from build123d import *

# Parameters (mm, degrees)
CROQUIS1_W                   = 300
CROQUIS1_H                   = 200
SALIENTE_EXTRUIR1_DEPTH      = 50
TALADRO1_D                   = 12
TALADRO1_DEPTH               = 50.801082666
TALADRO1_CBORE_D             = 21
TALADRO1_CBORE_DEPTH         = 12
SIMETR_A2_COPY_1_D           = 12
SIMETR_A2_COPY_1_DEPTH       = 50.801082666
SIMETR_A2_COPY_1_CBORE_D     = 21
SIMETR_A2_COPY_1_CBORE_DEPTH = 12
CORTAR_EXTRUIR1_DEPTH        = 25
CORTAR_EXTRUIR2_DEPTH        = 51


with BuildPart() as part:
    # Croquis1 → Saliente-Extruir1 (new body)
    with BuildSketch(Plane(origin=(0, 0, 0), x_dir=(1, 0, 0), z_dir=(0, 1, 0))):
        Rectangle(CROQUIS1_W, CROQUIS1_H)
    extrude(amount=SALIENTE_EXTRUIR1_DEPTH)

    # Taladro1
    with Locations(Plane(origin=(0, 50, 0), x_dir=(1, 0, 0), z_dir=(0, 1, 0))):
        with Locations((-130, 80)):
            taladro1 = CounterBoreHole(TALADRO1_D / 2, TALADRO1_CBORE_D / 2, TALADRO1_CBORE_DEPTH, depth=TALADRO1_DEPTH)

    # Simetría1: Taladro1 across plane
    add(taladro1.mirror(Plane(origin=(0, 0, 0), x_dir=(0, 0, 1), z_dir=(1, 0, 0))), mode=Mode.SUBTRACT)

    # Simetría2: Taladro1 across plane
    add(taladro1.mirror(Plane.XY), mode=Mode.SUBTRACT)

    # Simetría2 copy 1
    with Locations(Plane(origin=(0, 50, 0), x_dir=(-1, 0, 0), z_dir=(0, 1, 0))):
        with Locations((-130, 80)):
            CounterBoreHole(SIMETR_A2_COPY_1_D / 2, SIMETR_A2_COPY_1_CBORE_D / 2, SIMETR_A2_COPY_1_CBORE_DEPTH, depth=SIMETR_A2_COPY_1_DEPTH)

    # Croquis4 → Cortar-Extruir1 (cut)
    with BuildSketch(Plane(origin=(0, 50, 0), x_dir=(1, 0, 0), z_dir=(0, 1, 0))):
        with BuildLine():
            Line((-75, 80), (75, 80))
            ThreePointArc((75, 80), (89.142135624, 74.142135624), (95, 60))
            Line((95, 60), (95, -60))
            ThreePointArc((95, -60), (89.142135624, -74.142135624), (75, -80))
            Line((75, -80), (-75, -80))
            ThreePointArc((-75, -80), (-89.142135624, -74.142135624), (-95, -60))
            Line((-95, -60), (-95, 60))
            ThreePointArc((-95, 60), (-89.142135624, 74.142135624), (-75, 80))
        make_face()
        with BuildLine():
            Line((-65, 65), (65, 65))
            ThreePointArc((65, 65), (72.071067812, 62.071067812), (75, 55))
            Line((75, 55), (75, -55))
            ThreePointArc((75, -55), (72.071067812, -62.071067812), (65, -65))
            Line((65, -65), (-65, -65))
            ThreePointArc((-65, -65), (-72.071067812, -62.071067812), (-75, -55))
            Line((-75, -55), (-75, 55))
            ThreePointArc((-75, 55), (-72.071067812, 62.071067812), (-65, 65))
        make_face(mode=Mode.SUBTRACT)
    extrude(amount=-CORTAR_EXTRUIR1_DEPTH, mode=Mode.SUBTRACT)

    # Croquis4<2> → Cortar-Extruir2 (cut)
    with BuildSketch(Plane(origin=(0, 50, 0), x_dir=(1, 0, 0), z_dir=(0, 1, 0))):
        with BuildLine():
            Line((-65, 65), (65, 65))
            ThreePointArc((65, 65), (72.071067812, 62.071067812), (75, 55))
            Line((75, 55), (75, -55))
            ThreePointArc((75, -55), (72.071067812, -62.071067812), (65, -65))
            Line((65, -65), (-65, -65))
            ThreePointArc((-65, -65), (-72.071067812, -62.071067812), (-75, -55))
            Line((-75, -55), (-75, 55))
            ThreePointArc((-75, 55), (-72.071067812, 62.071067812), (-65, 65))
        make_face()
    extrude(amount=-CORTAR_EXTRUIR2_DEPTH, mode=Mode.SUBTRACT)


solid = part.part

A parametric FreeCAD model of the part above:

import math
import FreeCAD as App
import Part
import Sketcher

doc = App.newDocument("Part")
body = doc.addObject("PartDesign::Body", "Body")

sketch1 = doc.addObject("Sketcher::SketchObject", "Sketch")
body.addObject(sketch1)
sketch1.AttachmentSupport = (doc.XZ_Plane, [""])
sketch1.MapMode = "FlatFace"
sketch1.addGeometry(Part.LineSegment(App.Vector(-150, -100, 0), App.Vector(-150, 100, 0)), False)
sketch1.addGeometry(Part.LineSegment(App.Vector(-150, 100, 0), App.Vector(150, 100, 0)), False)
sketch1.addGeometry(Part.LineSegment(App.Vector(150, 100, 0), App.Vector(150, -100, 0)), False)
sketch1.addGeometry(Part.LineSegment(App.Vector(150, -100, 0), App.Vector(-150, -100, 0)), False)
sketch1.addConstraint(Sketcher.Constraint("Coincident", 0, 2, 1, 1))
sketch1.addConstraint(Sketcher.Constraint("Coincident", 1, 2, 2, 1))
sketch1.addConstraint(Sketcher.Constraint("Coincident", 2, 2, 3, 1))
sketch1.addConstraint(Sketcher.Constraint("Coincident", 3, 2, 0, 1))
sketch1.addConstraint(Sketcher.Constraint("Vertical", 0))
sketch1.addConstraint(Sketcher.Constraint("Horizontal", 1))
sketch1.addConstraint(Sketcher.Constraint("Vertical", 2))
sketch1.addConstraint(Sketcher.Constraint("Horizontal", 3))
sketch1.addConstraint(Sketcher.Constraint("Symmetric", 0, 2, 2, 2, -1, 1))
sketch1.addConstraint(Sketcher.Constraint("DistanceX", 1, 1, 1, 2, 300.0))
sketch1.addConstraint(Sketcher.Constraint("DistanceY", 0, 1, 0, 2, 200.0))
pad1 = doc.addObject("PartDesign::Pad", "Pad")
body.addObject(pad1)
pad1.Profile = sketch1
pad1.Length = 50
pad1.Reversed = True

sketch2 = doc.addObject("Sketcher::SketchObject", "Sketch001")
body.addObject(sketch2)
sketch2.AttachmentSupport = (doc.XZ_Plane, [""])
sketch2.MapMode = "FlatFace"
sketch2.AttachmentOffset = App.Placement(App.Vector(0, 0, -50), App.Rotation())
sketch2.addGeometry(Part.Circle(App.Vector(-130, -80, 0), App.Vector(0, 0, 1), 6), False)
sketch2.addConstraint(Sketcher.Constraint("Diameter", 0, 12.0))
sketch2.addConstraint(Sketcher.Constraint("DistanceX", 0, 3, -1, 1, 130.0))
sketch2.addConstraint(Sketcher.Constraint("DistanceY", 0, 3, -1, 1, 80.0))
doc.recompute()
hole = doc.addObject("PartDesign::Hole", "Hole")
body.addObject(hole)
hole.Profile = sketch2
hole.ThreadType = "None"
hole.Diameter = 12
hole.DepthType = "Dimension"
hole.Depth = 50.801083
hole.DrillPoint = "Flat"
hole.HoleCutType = "Counterbore"
hole.HoleCutDiameter = 21
hole.HoleCutDepth = 12
hole.Reversed = True
doc.recompute()

mirrored = doc.addObject("PartDesign::Mirrored", "Mirrored")
body.addObject(mirrored)
mirrored.Originals = [hole]
mirrored.MirrorPlane = (doc.YZ_Plane, [""])
body.Tip = mirrored
doc.recompute()

mirrored2 = doc.addObject("PartDesign::Mirrored", "Mirrored001")
body.addObject(mirrored2)
mirrored2.Originals = [hole]
mirrored2.MirrorPlane = (doc.XY_Plane, [""])
body.Tip = mirrored2

sketch3 = doc.addObject("Sketcher::SketchObject", "Sketch002")
body.addObject(sketch3)
sketch3.AttachmentSupport = (doc.XZ_Plane, [""])
sketch3.MapMode = "FlatFace"
sketch3.AttachmentOffset = App.Placement(App.Vector(0, 0, -50), App.Rotation())
sketch3.addGeometry(Part.Circle(App.Vector(130, 80, 0), App.Vector(0, 0, 1), 6), False)
sketch3.addConstraint(Sketcher.Constraint("Diameter", 0, 12.0))
sketch3.addConstraint(Sketcher.Constraint("DistanceX", -1, 1, 0, 3, 130.0))
sketch3.addConstraint(Sketcher.Constraint("DistanceY", -1, 1, 0, 3, 80.0))
doc.recompute()
hole2 = doc.addObject("PartDesign::Hole", "Hole001")
body.addObject(hole2)
hole2.Profile = sketch3
hole2.ThreadType = "None"
hole2.Diameter = 12
hole2.DepthType = "Dimension"
hole2.Depth = 50.801083
hole2.DrillPoint = "Flat"
hole2.HoleCutType = "Counterbore"
hole2.HoleCutDiameter = 21
hole2.HoleCutDepth = 12
hole2.Reversed = True

sketch4 = doc.addObject("Sketcher::SketchObject", "Sketch003")
body.addObject(sketch4)
sketch4.AttachmentSupport = (doc.XZ_Plane, [""])
sketch4.MapMode = "FlatFace"
sketch4.AttachmentOffset = App.Placement(App.Vector(0, 0, -50), App.Rotation())
sketch4.addGeometry(Part.LineSegment(App.Vector(75, -80, 0), App.Vector(-75, -80, 0)), False)
sketch4.addGeometry(Part.ArcOfCircle(Part.Circle(App.Vector(-75, -60, 0), App.Vector(0, 0, 1), 20), math.radians(180), math.radians(270)), False)
sketch4.addGeometry(Part.LineSegment(App.Vector(-95, -60, 0), App.Vector(-95, 60, 0)), False)
sketch4.addGeometry(Part.ArcOfCircle(Part.Circle(App.Vector(-75, 60, 0), App.Vector(0, 0, 1), 20), math.radians(90), math.radians(180)), False)
sketch4.addGeometry(Part.LineSegment(App.Vector(-75, 80, 0), App.Vector(75, 80, 0)), False)
sketch4.addGeometry(Part.ArcOfCircle(Part.Circle(App.Vector(75, 60, 0), App.Vector(0, 0, 1), 20), math.radians(0), math.radians(90)), False)
sketch4.addGeometry(Part.LineSegment(App.Vector(95, 60, 0), App.Vector(95, -60, 0)), False)
sketch4.addGeometry(Part.ArcOfCircle(Part.Circle(App.Vector(75, -60, 0), App.Vector(0, 0, 1), 20), math.radians(-90), math.radians(0)), False)
sketch4.addGeometry(Part.LineSegment(App.Vector(-65, -65, 0), App.Vector(65, -65, 0)), False)
sketch4.addGeometry(Part.ArcOfCircle(Part.Circle(App.Vector(65, -55, 0), App.Vector(0, 0, 1), 10), math.radians(-90), math.radians(0)), False)
sketch4.addGeometry(Part.LineSegment(App.Vector(75, -55, 0), App.Vector(75, 55, 0)), False)
sketch4.addGeometry(Part.ArcOfCircle(Part.Circle(App.Vector(65, 55, 0), App.Vector(0, 0, 1), 10), math.radians(0), math.radians(90)), False)
sketch4.addGeometry(Part.LineSegment(App.Vector(65, 65, 0), App.Vector(-65, 65, 0)), False)
sketch4.addGeometry(Part.ArcOfCircle(Part.Circle(App.Vector(-65, 55, 0), App.Vector(0, 0, 1), 10), math.radians(90), math.radians(180)), False)
sketch4.addGeometry(Part.LineSegment(App.Vector(-75, 55, 0), App.Vector(-75, -55, 0)), False)
sketch4.addGeometry(Part.ArcOfCircle(Part.Circle(App.Vector(-65, -55, 0), App.Vector(0, 0, 1), 10), math.radians(180), math.radians(270)), False)
sketch4.addConstraint(Sketcher.Constraint("Tangent", 0, 2, 1, 2))
sketch4.addConstraint(Sketcher.Constraint("Tangent", 1, 1, 2, 1))
sketch4.addConstraint(Sketcher.Constraint("Tangent", 2, 2, 3, 2))
sketch4.addConstraint(Sketcher.Constraint("Tangent", 3, 1, 4, 1))
sketch4.addConstraint(Sketcher.Constraint("Tangent", 4, 2, 5, 2))
sketch4.addConstraint(Sketcher.Constraint("Tangent", 5, 1, 6, 1))
sketch4.addConstraint(Sketcher.Constraint("Tangent", 6, 2, 7, 2))
sketch4.addConstraint(Sketcher.Constraint("Tangent", 7, 1, 0, 1))
sketch4.addConstraint(Sketcher.Constraint("Tangent", 8, 2, 9, 1))
sketch4.addConstraint(Sketcher.Constraint("Tangent", 9, 2, 10, 1))
sketch4.addConstraint(Sketcher.Constraint("Tangent", 10, 2, 11, 1))
sketch4.addConstraint(Sketcher.Constraint("Tangent", 11, 2, 12, 1))
sketch4.addConstraint(Sketcher.Constraint("Tangent", 12, 2, 13, 1))
sketch4.addConstraint(Sketcher.Constraint("Tangent", 13, 2, 14, 1))
sketch4.addConstraint(Sketcher.Constraint("Tangent", 14, 2, 15, 1))
sketch4.addConstraint(Sketcher.Constraint("Tangent", 15, 2, 8, 1))
sketch4.addConstraint(Sketcher.Constraint("Horizontal", 0))
sketch4.addConstraint(Sketcher.Constraint("Vertical", 2))
sketch4.addConstraint(Sketcher.Constraint("Horizontal", 4))
sketch4.addConstraint(Sketcher.Constraint("Vertical", 6))
sketch4.addConstraint(Sketcher.Constraint("Horizontal", 8))
sketch4.addConstraint(Sketcher.Constraint("Vertical", 10))
sketch4.addConstraint(Sketcher.Constraint("Horizontal", 12))
sketch4.addConstraint(Sketcher.Constraint("Vertical", 14))
sketch4.addConstraint(Sketcher.Constraint("Equal", 1, 3))
sketch4.addConstraint(Sketcher.Constraint("Equal", 3, 5))
sketch4.addConstraint(Sketcher.Constraint("Equal", 5, 7))
sketch4.addConstraint(Sketcher.Constraint("Equal", 9, 11))
sketch4.addConstraint(Sketcher.Constraint("Equal", 11, 13))
sketch4.addConstraint(Sketcher.Constraint("Equal", 13, 15))
sketch4.addConstraint(Sketcher.Constraint("Symmetric", 1, 3, 5, 3, -1, 1))
sketch4.addConstraint(Sketcher.Constraint("Symmetric", 9, 3, 13, 3, -1, 1))
sketch4.addConstraint(Sketcher.Constraint("Vertical", 7, 1, 9, 2))
sketch4.addConstraint(Sketcher.Constraint("Radius", 1, 20.0))
sketch4.addConstraint(Sketcher.Constraint("Radius", 9, 10.0))
sketch4.addConstraint(Sketcher.Constraint("DistanceX", 0, 2, 0, 1, 150.0))
sketch4.addConstraint(Sketcher.Constraint("DistanceY", 2, 1, 2, 2, 120.0))
sketch4.addConstraint(Sketcher.Constraint("DistanceY", 10, 1, 10, 2, 110.0))
pocket1 = doc.addObject("PartDesign::Pocket", "Pocket")
body.addObject(pocket1)
pocket1.Profile = sketch4
pocket1.Length = 25
pocket1.Reversed = True

sketch5 = doc.addObject("Sketcher::SketchObject", "Sketch004")
body.addObject(sketch5)
sketch5.AttachmentSupport = (doc.XZ_Plane, [""])
sketch5.MapMode = "FlatFace"
sketch5.AttachmentOffset = App.Placement(App.Vector(0, 0, -50), App.Rotation())
sketch5.addGeometry(Part.LineSegment(App.Vector(65, -65, 0), App.Vector(-65, -65, 0)), False)
sketch5.addGeometry(Part.ArcOfCircle(Part.Circle(App.Vector(-65, -55, 0), App.Vector(0, 0, 1), 10), math.radians(180), math.radians(270)), False)
sketch5.addGeometry(Part.LineSegment(App.Vector(-75, -55, 0), App.Vector(-75, 55, 0)), False)
sketch5.addGeometry(Part.ArcOfCircle(Part.Circle(App.Vector(-65, 55, 0), App.Vector(0, 0, 1), 10), math.radians(90), math.radians(180)), False)
sketch5.addGeometry(Part.LineSegment(App.Vector(-65, 65, 0), App.Vector(65, 65, 0)), False)
sketch5.addGeometry(Part.ArcOfCircle(Part.Circle(App.Vector(65, 55, 0), App.Vector(0, 0, 1), 10), math.radians(0), math.radians(90)), False)
sketch5.addGeometry(Part.LineSegment(App.Vector(75, 55, 0), App.Vector(75, -55, 0)), False)
sketch5.addGeometry(Part.ArcOfCircle(Part.Circle(App.Vector(65, -55, 0), App.Vector(0, 0, 1), 10), math.radians(-90), math.radians(0)), False)
sketch5.addConstraint(Sketcher.Constraint("Tangent", 0, 2, 1, 2))
sketch5.addConstraint(Sketcher.Constraint("Tangent", 1, 1, 2, 1))
sketch5.addConstraint(Sketcher.Constraint("Tangent", 2, 2, 3, 2))
sketch5.addConstraint(Sketcher.Constraint("Tangent", 3, 1, 4, 1))
sketch5.addConstraint(Sketcher.Constraint("Tangent", 4, 2, 5, 2))
sketch5.addConstraint(Sketcher.Constraint("Tangent", 5, 1, 6, 1))
sketch5.addConstraint(Sketcher.Constraint("Tangent", 6, 2, 7, 2))
sketch5.addConstraint(Sketcher.Constraint("Tangent", 7, 1, 0, 1))
sketch5.addConstraint(Sketcher.Constraint("Horizontal", 0))
sketch5.addConstraint(Sketcher.Constraint("Vertical", 2))
sketch5.addConstraint(Sketcher.Constraint("Horizontal", 4))
sketch5.addConstraint(Sketcher.Constraint("Vertical", 6))
sketch5.addConstraint(Sketcher.Constraint("Equal", 1, 3))
sketch5.addConstraint(Sketcher.Constraint("Equal", 3, 5))
sketch5.addConstraint(Sketcher.Constraint("Equal", 5, 7))
sketch5.addConstraint(Sketcher.Constraint("Symmetric", 1, 3, 5, 3, -1, 1))
sketch5.addConstraint(Sketcher.Constraint("Radius", 1, 10.0))
sketch5.addConstraint(Sketcher.Constraint("DistanceX", 0, 2, 0, 1, 130.0))
sketch5.addConstraint(Sketcher.Constraint("DistanceY", 2, 1, 2, 2, 110.0))
pocket2 = doc.addObject("PartDesign::Pocket", "Pocket001")
body.addObject(pocket2)
pocket2.Profile = sketch5
pocket2.Length = 51
pocket2.Reversed = True

doc.recompute()
